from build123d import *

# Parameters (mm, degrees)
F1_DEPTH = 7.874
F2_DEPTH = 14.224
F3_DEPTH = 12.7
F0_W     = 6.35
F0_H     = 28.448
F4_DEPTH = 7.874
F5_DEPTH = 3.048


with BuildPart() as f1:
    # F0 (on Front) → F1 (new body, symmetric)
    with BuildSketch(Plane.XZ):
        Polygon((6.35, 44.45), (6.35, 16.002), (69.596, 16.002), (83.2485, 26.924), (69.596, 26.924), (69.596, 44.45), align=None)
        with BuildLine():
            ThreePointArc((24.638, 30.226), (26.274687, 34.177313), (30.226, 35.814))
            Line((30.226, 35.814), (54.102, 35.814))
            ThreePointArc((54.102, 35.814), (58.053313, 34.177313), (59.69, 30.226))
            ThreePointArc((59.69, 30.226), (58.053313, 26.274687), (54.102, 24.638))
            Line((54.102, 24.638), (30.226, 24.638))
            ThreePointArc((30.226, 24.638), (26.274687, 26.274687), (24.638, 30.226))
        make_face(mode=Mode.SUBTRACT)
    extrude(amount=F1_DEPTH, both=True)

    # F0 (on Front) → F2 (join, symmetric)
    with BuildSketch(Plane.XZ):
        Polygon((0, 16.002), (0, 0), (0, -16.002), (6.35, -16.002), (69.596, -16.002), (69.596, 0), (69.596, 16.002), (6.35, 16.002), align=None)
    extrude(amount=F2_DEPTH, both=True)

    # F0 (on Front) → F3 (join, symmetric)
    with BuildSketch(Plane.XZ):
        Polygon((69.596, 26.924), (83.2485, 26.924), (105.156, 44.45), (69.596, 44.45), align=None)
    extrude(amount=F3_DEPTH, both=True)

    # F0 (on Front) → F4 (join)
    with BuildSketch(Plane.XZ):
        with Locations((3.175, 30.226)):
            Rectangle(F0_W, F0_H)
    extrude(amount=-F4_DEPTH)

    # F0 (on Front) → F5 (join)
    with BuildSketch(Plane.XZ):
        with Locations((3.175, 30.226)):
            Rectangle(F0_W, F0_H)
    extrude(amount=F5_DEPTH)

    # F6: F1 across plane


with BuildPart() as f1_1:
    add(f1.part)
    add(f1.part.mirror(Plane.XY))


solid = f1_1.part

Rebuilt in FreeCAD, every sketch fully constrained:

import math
import FreeCAD as App
import Part
import Sketcher
Q = App.Units.Quantity


def add_polygon(sketch, points):
    """Adds a closed chain of lines whose ends are joined by coincident constraints."""
    first, n = sketch.GeometryCount, len(points)
    for a, b in zip(points, points[1:] + points[:1]):
        sketch.addGeometry(Part.LineSegment(App.Vector(*a, 0), App.Vector(*b, 0)), False)
    for i in range(n):
        sketch.addConstraint(Sketcher.Constraint("Coincident", first + i, 2, first + (i + 1) % n, 1))

doc = App.newDocument("Part")
body = doc.addObject("PartDesign::Body", "Body")

sketch1 = body.newObject("Sketcher::SketchObject", "Sketch")
sketch1.AttachmentSupport = (doc.getObject("XZ_Plane"), [""])
sketch1.MapMode = "FlatFace"
add_polygon(sketch1, [(6.35, 44.45), (6.35, 16.002), (69.596, 16.002), (83.2485, 26.924), (69.596, 26.924), (69.596, 44.45)])
sketch1.addGeometry(Part.ArcOfCircle(Part.Circle(App.Vector(30.225999, 30.225999, 0), App.Vector(0, 0, 1), 5.587999), math.radians(179.999989), math.radians(270.000011)), False)
sketch1.addGeometry(Part.ArcOfCircle(Part.Circle(App.Vector(30.225999, 30.226001, 0), App.Vector(0, 0, 1), 5.587999), math.radians(89.999989), math.radians(180.000011)), False)
sketch1.addGeometry(Part.LineSegment(App.Vector(30.226, 35.814, 0), App.Vector(54.102, 35.814, 0)), False)
sketch1.addGeometry(Part.ArcOfCircle(Part.Circle(App.Vector(54.102001, 30.226001, 0), App.Vector(0, 0, 1), 5.587999), math.radians(-0.000011), math.radians(90.000011)), False)
sketch1.addGeometry(Part.ArcOfCircle(Part.Circle(App.Vector(54.102001, 30.225999, 0), App.Vector(0, 0, 1), 5.587999), math.radians(-90.000011), math.radians(0.000011)), False)
sketch1.addGeometry(Part.LineSegment(App.Vector(54.102, 24.638, 0), App.Vector(30.226, 24.638, 0)), False)
sketch1.addConstraint([
    Sketcher.Constraint("Tangent", 6, 1, 7, 2),
    Sketcher.Constraint("Tangent", 7, 1, 8, 1),
    Sketcher.Constraint("Tangent", 8, 2, 9, 2),
    Sketcher.Constraint("Tangent", 9, 1, 10, 2),
    Sketcher.Constraint("Tangent", 10, 1, 11, 1),
    Sketcher.Constraint("Tangent", 11, 2, 6, 2),
    Sketcher.Constraint("Vertical", 0),
    Sketcher.Constraint("Horizontal", 1),
    Sketcher.Constraint("Horizontal", 3),
    Sketcher.Constraint("Vertical", 4),
    Sketcher.Constraint("Horizontal", 5),
    Sketcher.Constraint("Horizontal", 8),
    Sketcher.Constraint("Horizontal", 11),
    Sketcher.Constraint("Equal", 6, 7),
    Sketcher.Constraint("Equal", 7, 9),
    Sketcher.Constraint("Horizontal", 10, 3, 6, 1),
    Sketcher.Constraint("Horizontal", 6, 1, 9, 1),
    Sketcher.Constraint("Vertical", 1, 2, 3, 2),
    Sketcher.Constraint("Radius", 6, Q("0.22 in")),
    Sketcher.Constraint("DistanceX", 1, 1, 1, 2, Q("2.49 in")),
    Sketcher.Constraint("DistanceX", 8, 1, 8, 2, Q("0.94 in")),
    Sketcher.Constraint("DistanceY", 0, 2, 0, 1, Q("1.12 in")),
    Sketcher.Constraint("DistanceY", 4, 1, 4, 2, Q("0.69 in")),
    Sketcher.Constraint("DistanceX", -1, 1, 6, 3, Q("1.19 in")),
    Sketcher.Constraint("DistanceY", -1, 1, 6, 3, Q("1.19 in")),
    Sketcher.Constraint("DistanceX", -1, 1, 0, 2, Q("0.25 in")),
    Sketcher.Constraint("DistanceY", -1, 1, 0, 2, Q("0.63 in")),
    Sketcher.Constraint("DistanceX", 3, 2, 3, 1, Q("0.5375 in")),
])
pad1 = body.newObject("PartDesign::Pad", "Pad")
pad1.Profile = sketch1
pad1.Length = Q("0.62 in")
pad1.Midplane = True

sketch2 = body.newObject("Sketcher::SketchObject", "Sketch001")
sketch2.AttachmentSupport = (doc.getObject("XZ_Plane"), [""])
sketch2.MapMode = "FlatFace"
add_polygon(sketch2, [(0, 16.002), (0, -16.002), (69.596, -16.002), (69.596, 16.002)])
sketch2.addConstraint([
    Sketcher.Constraint("Vertical", 0),
    Sketcher.Constraint("Horizontal", 1),
    Sketcher.Constraint("Vertical", 2),
    Sketcher.Constraint("Horizontal", 3),
    Sketcher.Constraint("Symmetric", 0, 2, 3, 2, -1, 1),
    Sketcher.Constraint("DistanceX", 1, 1, 1, 2, Q("2.74 in")),
    Sketcher.Constraint("DistanceY", 0, 2, 0, 1, Q("1.26 in")),
])
pad2 = body.newObject("PartDesign::Pad", "Pad001")
pad2.Profile = sketch2
pad2.Length = Q("1.12 in")
pad2.Midplane = True

sketch3 = body.newObject("Sketcher::SketchObject", "Sketch002")
sketch3.AttachmentSupport = (doc.getObject("XZ_Plane"), [""])
sketch3.MapMode = "FlatFace"
add_polygon(sketch3, [(69.596, 26.924), (83.2485, 26.924), (105.156, 44.45), (69.596, 44.45)])
sketch3.addConstraint([
    Sketcher.Constraint("Horizontal", 0),
    Sketcher.Constraint("Horizontal", 2),
    Sketcher.Constraint("Vertical", 3),
    Sketcher.Constraint("DistanceX", 2, 2, 2, 1, Q("1.4 in")),
    Sketcher.Constraint("DistanceY", 3, 2, 3, 1, Q("0.69 in")),
    Sketcher.Constraint("DistanceY", -1, 1, 0, 2, Q("1.06 in")),
    Sketcher.Constraint("DistanceX", -1, 1, 1, 2, Q("4.14 in")),
    Sketcher.Constraint("DistanceX", 0, 1, 0, 2, Q("0.5375 in")),
])
pad3 = body.newObject("PartDesign::Pad", "Pad002")
pad3.Profile = sketch3
pad3.Length = Q("1 in")
pad3.Midplane = True

sketch4 = body.newObject("Sketcher::SketchObject", "Sketch003")
sketch4.AttachmentSupport = (doc.getObject("XZ_Plane"), [""])
sketch4.MapMode = "FlatFace"
add_polygon(sketch4, [(0, 44.45), (0, 16.002), (6.35, 16.002), (6.35, 44.45)])
sketch4.addConstraint([
    Sketcher.Constraint("Vertical", 0),
    Sketcher.Constraint("Horizontal", 1),
    Sketcher.Constraint("Vertical", 2),
    Sketcher.Constraint("Horizontal", 3),
    Sketcher.Constraint("PointOnObject", 0, 2, -2),
    Sketcher.Constraint("DistanceX", 1, 1, 1, 2, Q("0.25 in")),
    Sketcher.Constraint("DistanceY", 0, 2, 0, 1, Q("1.12 in")),
    Sketcher.Constraint("DistanceY", -1, 1, 0, 2, Q("0.63 in")),
])
pad4 = body.newObject("PartDesign::Pad", "Pad003")
pad4.Profile = sketch4
pad4.Length = Q("0.31 in")
pad4.Reversed = True

sketch5 = body.newObject("Sketcher::SketchObject", "Sketch004")
sketch5.AttachmentSupport = (doc.getObject("XZ_Plane"), [""])
sketch5.MapMode = "FlatFace"
add_polygon(sketch5, [(0, 44.45), (0, 16.002), (6.35, 16.002), (6.35, 44.45)])
sketch5.addConstraint([
    Sketcher.Constraint("Vertical", 0),
    Sketcher.Constraint("Horizontal", 1),
    Sketcher.Constraint("Vertical", 2),
    Sketcher.Constraint("Horizontal", 3),
    Sketcher.Constraint("PointOnObject", 0, 2, -2),
    Sketcher.Constraint("DistanceX", 1, 1, 1, 2, Q("0.25 in")),
    Sketcher.Constraint("DistanceY", 0, 2, 0, 1, Q("1.12 in")),
    Sketcher.Constraint("DistanceY", -1, 1, 0, 2, Q("0.63 in")),
])
pad5 = body.newObject("PartDesign::Pad", "Pad004")
pad5.Profile = sketch5
pad5.Length = Q("0.12 in")
body2 = doc.addObject("PartDesign::Body", "Body001")
doc.recompute()

body2.BaseFeature = body
doc.recompute()

mirroring = doc.addObject("Part::Mirroring", "Mirroring")
mirroring.Source = body
mirroring.Base = App.Vector(0, 0, 0)
mirroring.Normal = App.Vector(0, 0, 1)
body3 = doc.addObject("PartDesign::Body", "Body002")
body3.BaseFeature = mirroring
boolean = body2.newObject("PartDesign::Boolean", "Boolean")
boolean.Type = "Fuse"
boolean.addObjects([body3])
doc.recompute()
mirroring.Visibility = False

doc.recompute()
